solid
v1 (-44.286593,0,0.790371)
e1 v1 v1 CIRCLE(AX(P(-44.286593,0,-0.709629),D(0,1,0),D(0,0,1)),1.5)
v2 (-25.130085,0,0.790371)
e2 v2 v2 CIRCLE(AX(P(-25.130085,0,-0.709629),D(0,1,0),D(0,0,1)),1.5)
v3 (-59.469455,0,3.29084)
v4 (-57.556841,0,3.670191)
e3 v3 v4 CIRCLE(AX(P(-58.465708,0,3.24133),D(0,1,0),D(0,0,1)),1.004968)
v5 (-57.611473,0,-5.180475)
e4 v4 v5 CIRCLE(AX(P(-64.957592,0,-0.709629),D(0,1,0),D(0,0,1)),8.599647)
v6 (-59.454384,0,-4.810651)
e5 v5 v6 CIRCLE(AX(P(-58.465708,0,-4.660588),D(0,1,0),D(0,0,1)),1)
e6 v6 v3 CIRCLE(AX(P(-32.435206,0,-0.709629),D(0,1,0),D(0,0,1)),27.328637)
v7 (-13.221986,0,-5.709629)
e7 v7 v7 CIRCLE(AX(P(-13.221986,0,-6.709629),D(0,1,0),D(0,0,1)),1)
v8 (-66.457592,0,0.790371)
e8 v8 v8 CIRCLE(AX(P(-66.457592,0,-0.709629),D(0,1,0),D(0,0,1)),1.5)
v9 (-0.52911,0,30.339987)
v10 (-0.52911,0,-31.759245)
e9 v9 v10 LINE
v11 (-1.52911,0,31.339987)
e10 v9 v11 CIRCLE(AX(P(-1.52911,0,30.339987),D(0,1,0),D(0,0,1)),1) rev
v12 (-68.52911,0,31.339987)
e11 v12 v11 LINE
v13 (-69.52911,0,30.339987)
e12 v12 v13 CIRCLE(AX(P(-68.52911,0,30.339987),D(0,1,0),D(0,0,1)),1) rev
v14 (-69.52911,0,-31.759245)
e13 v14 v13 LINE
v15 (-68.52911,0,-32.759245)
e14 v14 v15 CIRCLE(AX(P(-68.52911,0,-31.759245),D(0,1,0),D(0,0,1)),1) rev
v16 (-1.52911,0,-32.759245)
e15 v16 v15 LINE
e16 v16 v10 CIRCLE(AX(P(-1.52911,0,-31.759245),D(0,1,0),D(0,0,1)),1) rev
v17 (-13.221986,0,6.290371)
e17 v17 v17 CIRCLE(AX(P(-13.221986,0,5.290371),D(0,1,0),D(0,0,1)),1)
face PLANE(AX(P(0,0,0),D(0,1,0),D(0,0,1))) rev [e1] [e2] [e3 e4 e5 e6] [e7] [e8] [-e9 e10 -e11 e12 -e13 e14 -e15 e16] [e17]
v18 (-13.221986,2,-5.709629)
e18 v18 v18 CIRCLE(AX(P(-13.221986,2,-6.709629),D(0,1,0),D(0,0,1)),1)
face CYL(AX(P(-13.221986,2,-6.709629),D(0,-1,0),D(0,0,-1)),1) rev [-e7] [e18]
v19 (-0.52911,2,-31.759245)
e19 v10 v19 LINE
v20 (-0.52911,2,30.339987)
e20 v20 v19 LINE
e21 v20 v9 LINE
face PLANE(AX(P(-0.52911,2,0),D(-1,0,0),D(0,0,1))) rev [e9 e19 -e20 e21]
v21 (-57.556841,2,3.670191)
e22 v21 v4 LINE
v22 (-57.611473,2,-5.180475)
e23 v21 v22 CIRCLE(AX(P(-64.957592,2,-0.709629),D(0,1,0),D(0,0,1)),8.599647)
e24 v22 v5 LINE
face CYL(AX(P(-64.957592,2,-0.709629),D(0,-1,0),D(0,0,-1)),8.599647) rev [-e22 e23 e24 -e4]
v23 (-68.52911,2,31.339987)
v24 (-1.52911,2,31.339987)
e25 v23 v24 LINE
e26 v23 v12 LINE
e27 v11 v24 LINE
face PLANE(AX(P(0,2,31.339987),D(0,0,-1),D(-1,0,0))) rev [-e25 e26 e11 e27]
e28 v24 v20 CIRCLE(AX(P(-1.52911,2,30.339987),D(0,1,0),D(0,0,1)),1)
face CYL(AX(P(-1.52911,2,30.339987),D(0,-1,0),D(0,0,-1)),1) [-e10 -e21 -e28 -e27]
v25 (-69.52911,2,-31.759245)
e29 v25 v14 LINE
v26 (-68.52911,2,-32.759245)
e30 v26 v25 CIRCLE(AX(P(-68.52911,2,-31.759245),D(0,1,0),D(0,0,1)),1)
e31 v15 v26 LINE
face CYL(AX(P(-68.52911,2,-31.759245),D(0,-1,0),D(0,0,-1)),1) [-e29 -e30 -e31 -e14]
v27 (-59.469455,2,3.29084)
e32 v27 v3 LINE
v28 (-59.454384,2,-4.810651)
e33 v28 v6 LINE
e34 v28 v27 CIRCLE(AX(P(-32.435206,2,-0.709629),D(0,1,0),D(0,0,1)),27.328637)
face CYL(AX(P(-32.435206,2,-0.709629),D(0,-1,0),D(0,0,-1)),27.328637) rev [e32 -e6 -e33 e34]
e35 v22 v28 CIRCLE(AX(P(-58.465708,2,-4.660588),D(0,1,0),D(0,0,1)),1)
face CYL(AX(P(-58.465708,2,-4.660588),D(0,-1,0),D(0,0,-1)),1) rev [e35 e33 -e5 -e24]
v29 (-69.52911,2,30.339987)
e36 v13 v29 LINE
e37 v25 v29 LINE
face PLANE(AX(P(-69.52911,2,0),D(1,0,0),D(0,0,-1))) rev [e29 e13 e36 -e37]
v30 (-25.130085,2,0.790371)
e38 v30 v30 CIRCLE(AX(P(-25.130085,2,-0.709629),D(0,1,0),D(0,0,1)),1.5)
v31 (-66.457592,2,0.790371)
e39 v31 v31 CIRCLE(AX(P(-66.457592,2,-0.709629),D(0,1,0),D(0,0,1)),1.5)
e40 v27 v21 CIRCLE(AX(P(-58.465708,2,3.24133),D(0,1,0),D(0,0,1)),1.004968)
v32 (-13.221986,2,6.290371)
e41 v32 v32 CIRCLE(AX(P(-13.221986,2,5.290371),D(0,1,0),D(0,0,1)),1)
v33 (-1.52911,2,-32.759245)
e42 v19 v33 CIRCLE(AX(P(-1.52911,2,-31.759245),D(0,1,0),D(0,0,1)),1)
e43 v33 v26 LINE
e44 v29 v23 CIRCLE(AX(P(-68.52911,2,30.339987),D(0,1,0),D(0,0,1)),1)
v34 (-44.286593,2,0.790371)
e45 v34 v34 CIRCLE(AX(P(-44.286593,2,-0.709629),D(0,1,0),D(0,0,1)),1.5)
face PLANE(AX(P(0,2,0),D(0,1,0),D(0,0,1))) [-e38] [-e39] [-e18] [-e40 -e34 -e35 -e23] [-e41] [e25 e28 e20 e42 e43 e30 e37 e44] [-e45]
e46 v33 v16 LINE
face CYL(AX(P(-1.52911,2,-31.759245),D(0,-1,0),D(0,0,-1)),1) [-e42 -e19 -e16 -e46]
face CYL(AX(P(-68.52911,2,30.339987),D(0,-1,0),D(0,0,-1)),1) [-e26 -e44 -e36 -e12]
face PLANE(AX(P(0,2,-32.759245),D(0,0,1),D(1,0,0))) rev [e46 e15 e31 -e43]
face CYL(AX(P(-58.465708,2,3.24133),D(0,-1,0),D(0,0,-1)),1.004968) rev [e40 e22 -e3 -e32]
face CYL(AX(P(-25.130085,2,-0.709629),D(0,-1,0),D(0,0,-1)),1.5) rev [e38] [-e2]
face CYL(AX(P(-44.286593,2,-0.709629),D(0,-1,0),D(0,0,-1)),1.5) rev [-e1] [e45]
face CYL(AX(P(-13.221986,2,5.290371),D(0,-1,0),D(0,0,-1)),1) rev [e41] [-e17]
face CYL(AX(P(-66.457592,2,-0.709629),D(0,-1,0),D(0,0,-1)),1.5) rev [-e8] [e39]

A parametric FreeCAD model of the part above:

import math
import FreeCAD as App
import Part
import Sketcher
from FreeCAD import Vector
Q = App.Units.Quantity


def edges_at(feature, points):
    """Names of the edges that pass closest to the given points."""
    edges = feature.Shape.Edges
    near = lambda p: min(range(len(edges)), key=lambda i: edges[i].distToShape(Part.Vertex(*p))[0])
    return sorted({f"Edge{near(p) + 1}" for p in points})


def add_polygon(sketch, points):
    """Adds a closed chain of lines whose ends are joined by coincident constraints."""
    first, n = sketch.GeometryCount, len(points)
    for a, b in zip(points, points[1:] + points[:1]):
        sketch.addGeometry(Part.LineSegment(App.Vector(*a, 0), App.Vector(*b, 0)), False)
    for i in range(n):
        sketch.addConstraint(Sketcher.Constraint("Coincident", first + i, 2, first + (i + 1) % n, 1))

doc = App.newDocument("Part")
body = doc.addObject("PartDesign::Body", "Body")

# Sketch on XZ plane
sketch1 = body.newObject("Sketcher::SketchObject", "Sketch")
sketch1.AttachmentSupport = (doc.getObject("XZ_Plane"), [""])
sketch1.MapMode = "FlatFace"
add_polygon(sketch1, [(-69.53, -32.76), (-69.53, 31.34), (-0.53, 31.34), (-0.53, -32.76)])  # lines 0-3
sketch1.addGeometry(Part.ArcOfCircle(Part.Circle(Vector(-32.44, -0.71, 0), Vector(0, 0, 1), 27.33), math.radians(171.58), math.radians(188.63)), False)  # 4
sketch1.addGeometry(Part.ArcOfCircle(Part.Circle(Vector(-58.47, -4.66, 0), Vector(0, 0, 1), 1), math.radians(-171), math.radians(-31)), False)  # 5
sketch1.addGeometry(Part.ArcOfCircle(Part.Circle(Vector(-64.96, -0.71, 0), Vector(0, 0, 1), 8.6), math.radians(-31), math.radians(31)), False)  # 6
sketch1.addGeometry(Part.ArcOfCircle(Part.Circle(Vector(-58.47, 3.24, 0), Vector(0, 0, 1), 1), math.radians(25.26), math.radians(37.39)), False)  # 7
sketch1.addGeometry(Part.ArcOfCircle(Part.Circle(Vector(-58.47, 3.24, 0), Vector(0, 0, 1), 1), math.radians(37), math.radians(166)), False)  # 8
sketch1.addGeometry(Part.ArcOfCircle(Part.Circle(Vector(-58.47, 3.24, 0), Vector(0, 0, 1), 1), math.radians(165.56), math.radians(177.18)), False)  # 9
sketch1.addGeometry(Part.Circle(Vector(-13.22, 5.29, 0), Vector(0, 0, 1), 1), False)  # 10
sketch1.addGeometry(Part.Circle(Vector(-66.46, -0.71, 0), Vector(0, 0, 1), 1.5), False)  # 11
sketch1.addGeometry(Part.Circle(Vector(-44.29, -0.71, 0), Vector(0, 0, 1), 1.5), False)  # 12
sketch1.addGeometry(Part.Circle(Vector(-25.13, -0.71, 0), Vector(0, 0, 1), 1.5), False)  # 13
sketch1.addGeometry(Part.Circle(Vector(-13.22, -6.71, 0), Vector(0, 0, 1), 1), False)  # 14
sketch1.addConstraint([
    Sketcher.Constraint("Tangent", 4, 2, 5, 1),
    Sketcher.Constraint("Tangent", 5, 2, 6, 1),
    Sketcher.Constraint("Coincident", 6, 2, 7, 1),
    Sketcher.Constraint("Tangent", 7, 2, 8, 1),
    Sketcher.Constraint("Tangent", 8, 2, 9, 1),
    Sketcher.Constraint("Coincident", 9, 2, 4, 1),
    Sketcher.Constraint("Vertical", 0),
    Sketcher.Constraint("Horizontal", 1),
    Sketcher.Constraint("Vertical", 2),
    Sketcher.Constraint("Horizontal", 3),
    Sketcher.Constraint("Coincident", 9, 3, 7, 3),
    Sketcher.Constraint("Equal", 5, 10),
    Sketcher.Constraint("Equal", 11, 12),
    Sketcher.Constraint("Equal", 12, 13),
    Sketcher.Constraint("Equal", 10, 14),
    Sketcher.Constraint("Horizontal", 4, 3, 6, 3),
    Sketcher.Constraint("Horizontal", 6, 3, 11, 3),
    Sketcher.Constraint("Horizontal", 11, 3, 12, 3),
    Sketcher.Constraint("Horizontal", 12, 3, 13, 3),
    Sketcher.Constraint("Vertical", 5, 3, 7, 3),
    Sketcher.Constraint("Vertical", 10, 3, 14, 3),
    Sketcher.Constraint("Diameter", 10, Q("2 mm")),
    Sketcher.Constraint("Diameter", 11, Q("3 mm")),
    Sketcher.Constraint("DistanceX", 1, 1, 1, 2, Q("69 mm")),
    Sketcher.Constraint("DistanceY", 4, 3, 10, 3, Q("6 mm")),
    Sketcher.Constraint("DistanceY", 14, 3, 10, 3, Q("12 mm")),
    Sketcher.Constraint("DistanceX", 11, 3, 6, 3, Q("1.5 mm")),
    Sketcher.Constraint("Radius", 4, Q("27.328637 mm")),
    Sketcher.Constraint("Radius", 6, Q("8.599647 mm")),
    Sketcher.Constraint("Radius", 7, Q("1.004968 mm")),
    Sketcher.Constraint("DistanceX", 13, 3, 10, 3, Q("11.9081 mm")),
    Sketcher.Constraint("DistanceY", 8, 2, 6, 2, Q("0.178301 mm")),
    Sketcher.Constraint("DistanceY", 0, 1, 0, 2, Q("64.099232 mm")),
    Sketcher.Constraint("DistanceY", 4, 3, -1, 1, Q("0.709629 mm")),
    Sketcher.Constraint("DistanceY", 5, 3, -1, 1, Q("4.660588 mm")),
    Sketcher.Constraint("DistanceX", 6, 3, -1, 1, Q("64.957592 mm")),
    Sketcher.Constraint("DistanceY", -1, 1, 7, 3, Q("3.24133 mm")),
    Sketcher.Constraint("DistanceX", 0, 2, -1, 1, Q("69.52911 mm")),
    Sketcher.Constraint("DistanceX", 4, 3, 10, 3, Q("19.21322 mm")),
    Sketcher.Constraint("DistanceY", 6, 2, 7, 2, Q("0.181371 mm")),
    Sketcher.Constraint("DistanceX", 12, 3, -1, 1, Q("44.286593 mm")),
    Sketcher.Constraint("DistanceY", -1, 1, 0, 2, Q("31.339987 mm")),
])
pad1 = body.newObject("PartDesign::Pad", "Pad")
pad1.Profile = sketch1
pad1.Length = 2
pad1.Reversed = True
doc.recompute()

fillet = body.newObject("PartDesign::Fillet", "Fillet")
fillet.Base = (pad1, edges_at(pad1, [
    (-0.529, 1, 31.34),
    (-69.529, 1, 31.34),
    (-69.529, 1, -32.759),
    (-0.529, 1, -32.759),
]))
fillet.Radius = 1

doc.recompute()
